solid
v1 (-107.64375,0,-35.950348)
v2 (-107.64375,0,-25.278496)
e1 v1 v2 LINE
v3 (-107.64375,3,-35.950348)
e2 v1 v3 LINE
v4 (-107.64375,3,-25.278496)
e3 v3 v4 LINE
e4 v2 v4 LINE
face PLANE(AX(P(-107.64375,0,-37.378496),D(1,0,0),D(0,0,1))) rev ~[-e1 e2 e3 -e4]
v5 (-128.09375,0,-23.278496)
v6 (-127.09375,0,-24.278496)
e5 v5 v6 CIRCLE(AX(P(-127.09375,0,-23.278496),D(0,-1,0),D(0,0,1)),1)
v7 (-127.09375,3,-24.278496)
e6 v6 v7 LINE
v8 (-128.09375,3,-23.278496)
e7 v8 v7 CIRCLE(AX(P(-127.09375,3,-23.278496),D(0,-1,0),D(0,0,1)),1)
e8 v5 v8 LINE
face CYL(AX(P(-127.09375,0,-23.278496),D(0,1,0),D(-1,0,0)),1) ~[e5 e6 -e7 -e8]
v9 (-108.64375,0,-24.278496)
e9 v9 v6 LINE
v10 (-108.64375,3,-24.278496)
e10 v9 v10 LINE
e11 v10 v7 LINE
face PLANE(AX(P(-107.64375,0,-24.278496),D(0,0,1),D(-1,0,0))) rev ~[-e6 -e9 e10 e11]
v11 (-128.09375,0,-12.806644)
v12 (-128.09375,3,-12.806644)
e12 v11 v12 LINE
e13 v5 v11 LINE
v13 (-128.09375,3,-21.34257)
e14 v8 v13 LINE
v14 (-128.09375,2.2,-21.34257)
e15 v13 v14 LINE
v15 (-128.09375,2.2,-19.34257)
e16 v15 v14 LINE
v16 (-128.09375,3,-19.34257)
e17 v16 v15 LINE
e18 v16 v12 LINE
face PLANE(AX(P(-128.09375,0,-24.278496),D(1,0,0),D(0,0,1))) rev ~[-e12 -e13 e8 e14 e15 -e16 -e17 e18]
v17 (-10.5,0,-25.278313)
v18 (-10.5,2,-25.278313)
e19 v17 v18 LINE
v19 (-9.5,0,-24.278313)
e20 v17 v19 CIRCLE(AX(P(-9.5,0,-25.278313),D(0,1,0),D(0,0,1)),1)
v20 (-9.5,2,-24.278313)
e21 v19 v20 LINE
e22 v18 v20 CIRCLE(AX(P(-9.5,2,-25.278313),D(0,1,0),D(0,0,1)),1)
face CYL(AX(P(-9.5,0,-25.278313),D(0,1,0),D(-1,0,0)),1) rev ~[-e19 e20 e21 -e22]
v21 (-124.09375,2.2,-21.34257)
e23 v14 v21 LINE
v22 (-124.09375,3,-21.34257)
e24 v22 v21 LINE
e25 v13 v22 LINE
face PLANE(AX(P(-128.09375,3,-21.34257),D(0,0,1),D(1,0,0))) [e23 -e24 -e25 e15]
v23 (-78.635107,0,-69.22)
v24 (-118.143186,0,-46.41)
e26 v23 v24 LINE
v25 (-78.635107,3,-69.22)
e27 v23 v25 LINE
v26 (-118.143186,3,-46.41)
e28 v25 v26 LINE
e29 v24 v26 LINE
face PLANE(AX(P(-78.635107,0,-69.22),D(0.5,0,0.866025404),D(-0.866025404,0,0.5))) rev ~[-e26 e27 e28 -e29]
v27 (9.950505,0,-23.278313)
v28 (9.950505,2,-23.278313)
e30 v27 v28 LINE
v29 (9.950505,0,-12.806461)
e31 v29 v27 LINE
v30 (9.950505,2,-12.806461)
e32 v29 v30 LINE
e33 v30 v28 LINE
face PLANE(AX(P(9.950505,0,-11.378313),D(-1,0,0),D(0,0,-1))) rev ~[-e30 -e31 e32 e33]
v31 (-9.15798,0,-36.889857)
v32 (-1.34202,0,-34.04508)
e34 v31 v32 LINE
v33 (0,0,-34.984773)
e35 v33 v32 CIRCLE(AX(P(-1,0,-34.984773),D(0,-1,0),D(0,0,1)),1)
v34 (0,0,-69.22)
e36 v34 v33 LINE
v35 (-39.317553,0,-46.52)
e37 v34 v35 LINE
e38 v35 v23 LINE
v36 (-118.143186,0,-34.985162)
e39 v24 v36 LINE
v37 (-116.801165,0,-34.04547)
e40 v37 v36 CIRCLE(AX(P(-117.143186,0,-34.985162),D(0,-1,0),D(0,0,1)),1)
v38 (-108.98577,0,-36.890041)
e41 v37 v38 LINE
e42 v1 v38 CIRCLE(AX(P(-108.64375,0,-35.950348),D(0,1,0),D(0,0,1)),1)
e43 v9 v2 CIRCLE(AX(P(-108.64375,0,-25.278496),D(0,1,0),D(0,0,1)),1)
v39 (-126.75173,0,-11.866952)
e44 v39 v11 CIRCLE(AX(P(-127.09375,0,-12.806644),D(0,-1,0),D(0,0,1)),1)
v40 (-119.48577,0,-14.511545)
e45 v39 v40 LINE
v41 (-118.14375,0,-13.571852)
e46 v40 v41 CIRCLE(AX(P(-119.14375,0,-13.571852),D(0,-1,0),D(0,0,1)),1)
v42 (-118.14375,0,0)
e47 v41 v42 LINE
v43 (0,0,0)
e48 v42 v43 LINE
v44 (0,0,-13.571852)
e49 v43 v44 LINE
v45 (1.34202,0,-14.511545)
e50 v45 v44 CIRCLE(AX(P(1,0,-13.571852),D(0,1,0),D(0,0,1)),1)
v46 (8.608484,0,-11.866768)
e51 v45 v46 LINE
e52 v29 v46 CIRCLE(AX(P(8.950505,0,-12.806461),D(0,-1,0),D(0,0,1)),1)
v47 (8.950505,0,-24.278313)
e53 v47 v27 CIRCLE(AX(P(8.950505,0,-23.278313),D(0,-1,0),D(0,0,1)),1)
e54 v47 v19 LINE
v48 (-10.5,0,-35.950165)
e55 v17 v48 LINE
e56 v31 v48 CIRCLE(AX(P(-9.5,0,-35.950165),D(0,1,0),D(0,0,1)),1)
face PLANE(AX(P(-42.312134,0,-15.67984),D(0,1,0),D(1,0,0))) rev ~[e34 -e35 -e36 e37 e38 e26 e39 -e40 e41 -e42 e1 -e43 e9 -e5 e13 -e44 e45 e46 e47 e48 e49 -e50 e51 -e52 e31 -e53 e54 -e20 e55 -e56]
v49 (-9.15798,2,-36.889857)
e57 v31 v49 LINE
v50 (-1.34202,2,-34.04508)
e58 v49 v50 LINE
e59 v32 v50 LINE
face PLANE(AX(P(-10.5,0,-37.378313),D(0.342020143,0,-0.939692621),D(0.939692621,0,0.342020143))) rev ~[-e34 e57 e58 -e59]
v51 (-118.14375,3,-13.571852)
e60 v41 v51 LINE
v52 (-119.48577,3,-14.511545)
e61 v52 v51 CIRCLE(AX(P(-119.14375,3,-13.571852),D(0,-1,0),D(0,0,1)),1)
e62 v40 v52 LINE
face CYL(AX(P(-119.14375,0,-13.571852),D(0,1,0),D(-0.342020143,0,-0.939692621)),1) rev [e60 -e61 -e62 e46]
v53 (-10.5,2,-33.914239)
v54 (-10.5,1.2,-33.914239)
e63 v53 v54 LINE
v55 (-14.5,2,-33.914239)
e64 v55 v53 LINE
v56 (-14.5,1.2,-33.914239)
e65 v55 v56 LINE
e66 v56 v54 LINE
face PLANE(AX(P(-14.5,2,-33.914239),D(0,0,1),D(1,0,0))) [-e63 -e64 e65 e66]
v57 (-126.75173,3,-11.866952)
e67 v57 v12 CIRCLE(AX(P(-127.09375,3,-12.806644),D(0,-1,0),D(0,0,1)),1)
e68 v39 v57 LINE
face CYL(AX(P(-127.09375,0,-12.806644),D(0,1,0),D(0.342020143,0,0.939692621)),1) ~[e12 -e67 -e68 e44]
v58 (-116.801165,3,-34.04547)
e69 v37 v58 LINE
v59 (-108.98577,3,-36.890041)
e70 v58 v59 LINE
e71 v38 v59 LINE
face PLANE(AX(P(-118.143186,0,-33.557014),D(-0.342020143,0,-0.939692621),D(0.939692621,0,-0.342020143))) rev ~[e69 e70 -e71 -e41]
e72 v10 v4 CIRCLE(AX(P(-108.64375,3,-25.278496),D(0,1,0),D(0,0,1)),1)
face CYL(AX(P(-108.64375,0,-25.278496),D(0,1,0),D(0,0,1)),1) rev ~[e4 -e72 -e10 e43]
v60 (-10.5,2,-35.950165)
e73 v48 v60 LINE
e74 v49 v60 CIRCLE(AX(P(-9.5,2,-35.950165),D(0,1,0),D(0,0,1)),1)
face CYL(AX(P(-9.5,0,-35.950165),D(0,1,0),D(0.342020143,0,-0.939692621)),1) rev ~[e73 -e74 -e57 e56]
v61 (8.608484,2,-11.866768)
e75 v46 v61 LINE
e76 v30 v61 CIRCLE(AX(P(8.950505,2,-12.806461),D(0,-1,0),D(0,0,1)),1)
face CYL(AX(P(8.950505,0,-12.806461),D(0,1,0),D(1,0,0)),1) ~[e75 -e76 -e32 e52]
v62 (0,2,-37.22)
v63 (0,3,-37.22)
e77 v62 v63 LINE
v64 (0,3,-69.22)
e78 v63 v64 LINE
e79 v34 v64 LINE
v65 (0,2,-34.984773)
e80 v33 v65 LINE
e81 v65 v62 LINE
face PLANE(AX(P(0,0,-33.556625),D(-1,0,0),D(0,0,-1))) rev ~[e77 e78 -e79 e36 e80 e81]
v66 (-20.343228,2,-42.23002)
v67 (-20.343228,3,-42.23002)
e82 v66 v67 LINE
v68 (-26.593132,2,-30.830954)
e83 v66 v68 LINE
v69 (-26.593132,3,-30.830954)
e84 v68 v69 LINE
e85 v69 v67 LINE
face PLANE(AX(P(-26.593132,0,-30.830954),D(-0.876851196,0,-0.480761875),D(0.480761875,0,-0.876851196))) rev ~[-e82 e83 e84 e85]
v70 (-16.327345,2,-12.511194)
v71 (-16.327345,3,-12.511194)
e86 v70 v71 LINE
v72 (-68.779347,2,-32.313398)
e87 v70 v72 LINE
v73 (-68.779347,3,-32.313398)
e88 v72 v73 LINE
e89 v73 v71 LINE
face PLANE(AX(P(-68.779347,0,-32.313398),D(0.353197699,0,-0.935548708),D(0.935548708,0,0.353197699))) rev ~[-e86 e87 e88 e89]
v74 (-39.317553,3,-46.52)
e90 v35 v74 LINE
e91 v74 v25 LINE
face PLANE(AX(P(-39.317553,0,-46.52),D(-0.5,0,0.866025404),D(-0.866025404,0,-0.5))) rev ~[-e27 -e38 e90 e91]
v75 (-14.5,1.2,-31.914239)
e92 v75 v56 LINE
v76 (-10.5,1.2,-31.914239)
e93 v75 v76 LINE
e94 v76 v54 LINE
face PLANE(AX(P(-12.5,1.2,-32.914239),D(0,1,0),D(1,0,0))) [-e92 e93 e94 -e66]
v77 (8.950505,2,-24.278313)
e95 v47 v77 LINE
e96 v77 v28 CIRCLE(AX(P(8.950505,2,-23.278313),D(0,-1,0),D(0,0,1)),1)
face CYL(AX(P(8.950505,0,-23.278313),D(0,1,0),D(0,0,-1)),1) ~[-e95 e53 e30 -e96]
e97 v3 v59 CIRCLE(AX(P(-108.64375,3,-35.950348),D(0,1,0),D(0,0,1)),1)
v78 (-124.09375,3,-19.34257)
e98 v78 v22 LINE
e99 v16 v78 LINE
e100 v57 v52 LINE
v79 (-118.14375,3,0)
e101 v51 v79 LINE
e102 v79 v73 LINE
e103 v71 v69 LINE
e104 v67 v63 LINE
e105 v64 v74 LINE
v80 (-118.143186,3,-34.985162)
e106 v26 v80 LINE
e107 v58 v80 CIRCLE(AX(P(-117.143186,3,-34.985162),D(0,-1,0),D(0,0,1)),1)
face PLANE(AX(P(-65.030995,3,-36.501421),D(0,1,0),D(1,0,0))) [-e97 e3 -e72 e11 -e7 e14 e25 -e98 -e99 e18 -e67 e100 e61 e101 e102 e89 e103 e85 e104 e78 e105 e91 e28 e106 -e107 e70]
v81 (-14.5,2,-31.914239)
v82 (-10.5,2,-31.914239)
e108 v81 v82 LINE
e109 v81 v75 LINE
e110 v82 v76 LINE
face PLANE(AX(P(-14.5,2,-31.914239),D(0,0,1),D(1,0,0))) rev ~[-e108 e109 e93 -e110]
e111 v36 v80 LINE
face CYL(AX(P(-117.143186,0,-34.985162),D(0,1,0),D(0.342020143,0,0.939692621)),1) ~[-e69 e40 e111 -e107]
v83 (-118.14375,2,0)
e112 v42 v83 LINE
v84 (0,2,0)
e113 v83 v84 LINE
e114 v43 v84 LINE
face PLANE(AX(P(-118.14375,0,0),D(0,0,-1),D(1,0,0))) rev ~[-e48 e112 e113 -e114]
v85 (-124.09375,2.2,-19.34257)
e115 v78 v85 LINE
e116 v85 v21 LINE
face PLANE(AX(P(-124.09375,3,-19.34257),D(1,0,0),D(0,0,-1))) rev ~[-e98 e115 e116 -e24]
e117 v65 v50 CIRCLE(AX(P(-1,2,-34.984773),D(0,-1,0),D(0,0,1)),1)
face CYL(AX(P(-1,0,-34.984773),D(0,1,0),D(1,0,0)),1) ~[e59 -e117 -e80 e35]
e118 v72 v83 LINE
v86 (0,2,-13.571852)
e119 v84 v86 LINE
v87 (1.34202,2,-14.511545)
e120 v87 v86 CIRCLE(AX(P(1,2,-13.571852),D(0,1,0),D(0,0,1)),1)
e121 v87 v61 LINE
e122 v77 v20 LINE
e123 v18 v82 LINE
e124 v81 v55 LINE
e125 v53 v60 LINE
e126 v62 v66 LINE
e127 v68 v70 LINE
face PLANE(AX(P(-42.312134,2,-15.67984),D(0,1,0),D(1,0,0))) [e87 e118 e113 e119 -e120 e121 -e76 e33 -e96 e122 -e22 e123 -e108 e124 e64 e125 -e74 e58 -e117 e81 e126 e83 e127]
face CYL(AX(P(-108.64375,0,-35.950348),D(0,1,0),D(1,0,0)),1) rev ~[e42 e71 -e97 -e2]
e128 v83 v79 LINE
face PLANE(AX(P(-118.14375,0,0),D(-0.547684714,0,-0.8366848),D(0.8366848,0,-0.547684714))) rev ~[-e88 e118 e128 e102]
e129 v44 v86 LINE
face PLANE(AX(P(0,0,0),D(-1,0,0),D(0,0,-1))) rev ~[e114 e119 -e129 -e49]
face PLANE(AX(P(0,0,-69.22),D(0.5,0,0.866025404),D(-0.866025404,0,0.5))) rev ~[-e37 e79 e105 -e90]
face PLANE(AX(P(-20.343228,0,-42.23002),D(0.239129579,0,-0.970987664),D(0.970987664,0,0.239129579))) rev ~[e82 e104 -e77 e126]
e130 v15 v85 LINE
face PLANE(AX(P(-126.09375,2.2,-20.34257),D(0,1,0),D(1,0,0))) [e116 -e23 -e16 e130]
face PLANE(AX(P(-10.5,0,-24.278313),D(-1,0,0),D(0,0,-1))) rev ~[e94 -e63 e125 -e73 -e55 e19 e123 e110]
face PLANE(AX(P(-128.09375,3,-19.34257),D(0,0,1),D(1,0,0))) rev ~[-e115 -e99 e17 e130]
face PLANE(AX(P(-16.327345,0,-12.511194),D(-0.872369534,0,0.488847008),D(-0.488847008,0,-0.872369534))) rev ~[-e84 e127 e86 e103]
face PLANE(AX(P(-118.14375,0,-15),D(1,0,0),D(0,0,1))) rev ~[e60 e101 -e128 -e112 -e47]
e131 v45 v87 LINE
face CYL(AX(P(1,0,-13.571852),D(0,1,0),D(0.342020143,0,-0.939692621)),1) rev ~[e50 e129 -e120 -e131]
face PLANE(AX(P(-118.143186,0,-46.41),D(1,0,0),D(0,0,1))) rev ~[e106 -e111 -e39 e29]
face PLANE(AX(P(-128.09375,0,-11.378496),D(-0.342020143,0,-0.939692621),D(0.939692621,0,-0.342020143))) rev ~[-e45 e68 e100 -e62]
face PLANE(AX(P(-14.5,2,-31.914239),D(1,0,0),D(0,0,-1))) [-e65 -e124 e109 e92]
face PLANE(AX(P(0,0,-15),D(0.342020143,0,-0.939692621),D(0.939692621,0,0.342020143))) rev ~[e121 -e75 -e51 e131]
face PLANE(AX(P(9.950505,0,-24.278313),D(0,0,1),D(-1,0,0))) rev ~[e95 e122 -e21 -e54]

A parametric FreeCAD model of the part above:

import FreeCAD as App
import Part
import Sketcher

V = App.Vector
Q = App.Units.Quantity


def edges_at(feature, points):
    """Names of the edges that pass closest to the given points."""
    edges = feature.Shape.Edges
    near = lambda p: min(range(len(edges)), key=lambda i: edges[i].distToShape(Part.Vertex(*p))[0])
    return sorted({f"Edge{near(p) + 1}" for p in points})


def add_polygon(sketch, points):
    """Adds a closed chain of lines whose ends are joined by coincident constraints."""
    first, n = sketch.GeometryCount, len(points)
    for a, b in zip(points, points[1:] + points[:1]):
        sketch.addGeometry(Part.LineSegment(App.Vector(*a, 0), App.Vector(*b, 0)), False)
    for i in range(n):
        sketch.addConstraint(Sketcher.Constraint("Coincident", first + i, 2, first + (i + 1) % n, 1))

doc = App.newDocument("Part")
body = doc.addObject("PartDesign::Body", "Body")

# Sketch on XZ plane
sketch1 = doc.addObject("Sketcher::SketchObject", "Sketch")
body.addObject(sketch1)
sketch1.AttachmentSupport = (doc.XZ_Plane, [""])
sketch1.MapMode = "FlatFace"
add_polygon(sketch1, [(-118.14375, -15), (-118.14375, 0), (-68.779347, -32.313398), (-16.327345, -12.511194), (-26.593132, -30.830954), (-20.343228, -42.23002), (0, -37.22), (0, -69.22), (-39.317553, -46.52), (-78.635107, -69.22), (-118.143186, -46.41), (-118.143186, -33.557014), (-107.64375, -37.378496), (-107.64375, -24.278496), (-128.09375, -24.278496), (-128.09375, -11.378496)])  # lines 0-15
sketch1.addConstraint(Sketcher.Constraint("Vertical", 0))
sketch1.addConstraint(Sketcher.Constraint("Vertical", 6))
sketch1.addConstraint(Sketcher.Constraint("Vertical", 10))
sketch1.addConstraint(Sketcher.Constraint("Vertical", 12))
sketch1.addConstraint(Sketcher.Constraint("Horizontal", 13))
sketch1.addConstraint(Sketcher.Constraint("Vertical", 14))
sketch1.addConstraint(Sketcher.Constraint("PointOnObject", 0, 2, -1))
sketch1.addConstraint(Sketcher.Constraint("PointOnObject", 5, 2, -2))
sketch1.addConstraint(Sketcher.Constraint("Parallel", 7, 9))
sketch1.addConstraint(Sketcher.Constraint("Parallel", 11, 15))
sketch1.addConstraint(Sketcher.Constraint("Horizontal", 6, 2, 8, 2))
sketch1.addConstraint(Sketcher.Constraint("Equal", 7, 8))
sketch1.addConstraint(Sketcher.Constraint("DistanceY", 0, 1, 0, 2, 15.0))
sketch1.addConstraint(Sketcher.Constraint("DistanceY", 6, 2, 6, 1, 32.0))
sketch1.addConstraint(Sketcher.Constraint("Angle", 7, Q("150 deg")))
sketch1.addConstraint(Sketcher.Constraint("Angle", 11, Q("-20 deg")))
sketch1.addConstraint(Sketcher.Constraint("Distance", 1, 59.0))
sketch1.addConstraint(Sketcher.Constraint("Distance", 3, 21.0))
sketch1.addConstraint(Sketcher.Constraint("Distance", 4, 13.0))
sketch1.addConstraint(Sketcher.Constraint("DistanceY", 12, 1, 12, 2, 13.1))
sketch1.addConstraint(Sketcher.Constraint("DistanceY", 14, 1, 14, 2, 12.9))
sketch1.addConstraint(Sketcher.Constraint("Distance", 7, 45.4))
sketch1.addConstraint(Sketcher.Constraint("DistanceX", 13, 2, 13, 1, 20.45))
sketch1.addConstraint(Sketcher.Constraint("DistanceX", 0, 2, 11, 2, 10.5))
sketch1.addConstraint(Sketcher.Constraint("Distance", 9, 45.62))
sketch1.addConstraint(Sketcher.Constraint("DistanceY", 5, 2, -1, 1, 37.22))
sketch1.addConstraint(Sketcher.Constraint("DistanceX", 1, 2, 2, 2, 52.452002))
sketch1.addConstraint(Sketcher.Constraint("DistanceY", 1, 2, -1, 1, 32.313398))
sketch1.addConstraint(Sketcher.Constraint("DistanceY", 10, 1, 10, 2, 12.852986))
sketch1.addConstraint(Sketcher.Constraint("DistanceX", 4, 2, -1, 1, 20.343228))
sketch1.addConstraint(Sketcher.Constraint("DistanceY", 4, 2, -1, 1, 42.23002))
sketch1.addConstraint(Sketcher.Constraint("DistanceY", 3, 2, 2, 2, 18.31976))
pad1 = doc.addObject("PartDesign::Pad", "Pad")
body.addObject(pad1)
pad1.Profile = sketch1
pad1.Length = 3
pad1.Reversed = True

# Sketch on XZ plane
sketch2 = doc.addObject("Sketcher::SketchObject", "Sketch001")
body.addObject(sketch2)
sketch2.AttachmentSupport = (doc.XZ_Plane, [""])
sketch2.MapMode = "FlatFace"
add_polygon(sketch2, [(-68.779347, -32.313398), (-118.14375, 0), (0, 0), (0, -15), (9.950505, -11.378313), (9.950505, -24.278313), (-10.5, -24.278313), (-10.5, -37.378313), (0, -33.556625), (0, -37.22), (-20.343228, -42.23002), (-26.593132, -30.830954), (-16.327345, -12.511194)])  # lines 0-12
sketch2.addConstraint(Sketcher.Constraint("Horizontal", 1))
sketch2.addConstraint(Sketcher.Constraint("Vertical", 2))
sketch2.addConstraint(Sketcher.Constraint("Vertical", 4))
sketch2.addConstraint(Sketcher.Constraint("Horizontal", 5))
sketch2.addConstraint(Sketcher.Constraint("Vertical", 6))
sketch2.addConstraint(Sketcher.Constraint("Vertical", 8))
sketch2.addConstraint(Sketcher.Constraint("Coincident", 1, 2, -1, 1))
sketch2.addConstraint(Sketcher.Constraint("PointOnObject", 7, 2, -2))
sketch2.addConstraint(Sketcher.Constraint("Parallel", 3, 7))
sketch2.addConstraint(Sketcher.Constraint("DistanceY", 2, 2, 2, 1, 15.0))
sketch2.addConstraint(Sketcher.Constraint("Angle", 3, Q("20 deg")))
sketch2.addConstraint(Sketcher.Constraint("Distance", 0, 59.0))
sketch2.addConstraint(Sketcher.Constraint("Distance", 10, 13.0))
sketch2.addConstraint(Sketcher.Constraint("Distance", 11, 21.0))
sketch2.addConstraint(Sketcher.Constraint("DistanceY", 4, 2, 4, 1, 12.9))
sketch2.addConstraint(Sketcher.Constraint("DistanceY", 6, 2, 6, 1, 13.1))
sketch2.addConstraint(Sketcher.Constraint("DistanceX", 5, 2, -1, 1, 10.5))
sketch2.addConstraint(Sketcher.Constraint("DistanceY", 8, 2, -1, 1, 37.22))
sketch2.addConstraint(Sketcher.Constraint("DistanceX", 12, 2, 11, 2, 52.452002))
sketch2.addConstraint(Sketcher.Constraint("DistanceX", 1, 1, 1, 2, 118.14375))
sketch2.addConstraint(Sketcher.Constraint("DistanceY", 12, 2, -1, 1, 32.313398))
sketch2.addConstraint(Sketcher.Constraint("DistanceX", 5, 2, 5, 1, 20.450505))
sketch2.addConstraint(Sketcher.Constraint("DistanceX", 9, 2, -1, 1, 20.343228))
sketch2.addConstraint(Sketcher.Constraint("DistanceY", 9, 2, -1, 1, 42.23002))
sketch2.addConstraint(Sketcher.Constraint("DistanceY", 6, 2, 10, 2, 6.547358))
pad2 = doc.addObject("PartDesign::Pad", "Pad001")
body.addObject(pad2)
pad2.Profile = sketch2
pad2.Length = 2
pad2.Reversed = True
doc.recompute()

fillet = doc.addObject("PartDesign::Fillet", "Fillet")
body.addObject(fillet)
fillet.Base = (pad2, edges_at(pad2, [
    (-118.144, 1.5, -15),
    (-128.094, 1.5, -11.378),
    (-128.094, 1.5, -24.278),
    (-107.644, 1.5, -24.278),
    (-107.644, 1.5, -37.378),
    (-118.143, 1.5, -33.557),
    (-10.5, 1, -24.278),
    (-10.5, 1, -37.378),
    (0, 1, -33.557),
    (0, 1, -15),
    (9.951, 1, -11.378),
    (9.951, 1, -24.278),
]))
fillet.Radius = 1

# Sketch on XZ plane
sketch3 = doc.addObject("Sketcher::SketchObject", "Sketch002")
body.addObject(sketch3)
sketch3.AttachmentSupport = (doc.XZ_Plane, [""])
sketch3.MapMode = "FlatFace"
sketch3.AttachmentOffset = App.Placement(V(0, 0, -3), App.Rotation())
add_polygon(sketch3, [(-128.09375, -21.34257), (-128.09375, -19.34257), (-124.09375, -19.34257), (-124.09375, -21.34257)])  # lines 0-3
sketch3.addConstraint(Sketcher.Constraint("Vertical", 0))
sketch3.addConstraint(Sketcher.Constraint("Horizontal", 1))
sketch3.addConstraint(Sketcher.Constraint("Vertical", 2))
sketch3.addConstraint(Sketcher.Constraint("Horizontal", 3))
sketch3.addConstraint(Sketcher.Constraint("DistanceX", 1, 1, 1, 2, 4.0))
sketch3.addConstraint(Sketcher.Constraint("DistanceY", 0, 1, 0, 2, 2.0))
sketch3.addConstraint(Sketcher.Constraint("DistanceX", 0, 2, -1, 1, 128.09375))
sketch3.addConstraint(Sketcher.Constraint("DistanceY", 0, 2, -1, 1, 19.34257))
pocket1 = doc.addObject("PartDesign::Pocket", "Pocket")
body.addObject(pocket1)
pocket1.Profile = sketch3
pocket1.Length = 0.8
pocket1.Reversed = True

# Sketch on XZ plane
sketch4 = doc.addObject("Sketcher::SketchObject", "Sketch003")
body.addObject(sketch4)
sketch4.AttachmentSupport = (doc.XZ_Plane, [""])
sketch4.MapMode = "FlatFace"
sketch4.AttachmentOffset = App.Placement(V(0, 0, -2), App.Rotation())
add_polygon(sketch4, [(-14.5, -33.914239), (-14.5, -31.914239), (-10.5, -31.914239), (-10.5, -33.914239)])  # lines 0-3
sketch4.addConstraint(Sketcher.Constraint("Vertical", 0))
sketch4.addConstraint(Sketcher.Constraint("Horizontal", 1))
sketch4.addConstraint(Sketcher.Constraint("Vertical", 2))
sketch4.addConstraint(Sketcher.Constraint("Horizontal", 3))
sketch4.addConstraint(Sketcher.Constraint("DistanceX", 1, 1, 1, 2, 4.0))
sketch4.addConstraint(Sketcher.Constraint("DistanceY", 0, 1, 0, 2, 2.0))
sketch4.addConstraint(Sketcher.Constraint("DistanceX", 0, 2, -1, 1, 14.5))
sketch4.addConstraint(Sketcher.Constraint("DistanceY", 0, 2, -1, 1, 31.914239))
pocket2 = doc.addObject("PartDesign::Pocket", "Pocket001")
body.addObject(pocket2)
pocket2.Profile = sketch4
pocket2.Length = 0.8
pocket2.Reversed = True

doc.recompute()
